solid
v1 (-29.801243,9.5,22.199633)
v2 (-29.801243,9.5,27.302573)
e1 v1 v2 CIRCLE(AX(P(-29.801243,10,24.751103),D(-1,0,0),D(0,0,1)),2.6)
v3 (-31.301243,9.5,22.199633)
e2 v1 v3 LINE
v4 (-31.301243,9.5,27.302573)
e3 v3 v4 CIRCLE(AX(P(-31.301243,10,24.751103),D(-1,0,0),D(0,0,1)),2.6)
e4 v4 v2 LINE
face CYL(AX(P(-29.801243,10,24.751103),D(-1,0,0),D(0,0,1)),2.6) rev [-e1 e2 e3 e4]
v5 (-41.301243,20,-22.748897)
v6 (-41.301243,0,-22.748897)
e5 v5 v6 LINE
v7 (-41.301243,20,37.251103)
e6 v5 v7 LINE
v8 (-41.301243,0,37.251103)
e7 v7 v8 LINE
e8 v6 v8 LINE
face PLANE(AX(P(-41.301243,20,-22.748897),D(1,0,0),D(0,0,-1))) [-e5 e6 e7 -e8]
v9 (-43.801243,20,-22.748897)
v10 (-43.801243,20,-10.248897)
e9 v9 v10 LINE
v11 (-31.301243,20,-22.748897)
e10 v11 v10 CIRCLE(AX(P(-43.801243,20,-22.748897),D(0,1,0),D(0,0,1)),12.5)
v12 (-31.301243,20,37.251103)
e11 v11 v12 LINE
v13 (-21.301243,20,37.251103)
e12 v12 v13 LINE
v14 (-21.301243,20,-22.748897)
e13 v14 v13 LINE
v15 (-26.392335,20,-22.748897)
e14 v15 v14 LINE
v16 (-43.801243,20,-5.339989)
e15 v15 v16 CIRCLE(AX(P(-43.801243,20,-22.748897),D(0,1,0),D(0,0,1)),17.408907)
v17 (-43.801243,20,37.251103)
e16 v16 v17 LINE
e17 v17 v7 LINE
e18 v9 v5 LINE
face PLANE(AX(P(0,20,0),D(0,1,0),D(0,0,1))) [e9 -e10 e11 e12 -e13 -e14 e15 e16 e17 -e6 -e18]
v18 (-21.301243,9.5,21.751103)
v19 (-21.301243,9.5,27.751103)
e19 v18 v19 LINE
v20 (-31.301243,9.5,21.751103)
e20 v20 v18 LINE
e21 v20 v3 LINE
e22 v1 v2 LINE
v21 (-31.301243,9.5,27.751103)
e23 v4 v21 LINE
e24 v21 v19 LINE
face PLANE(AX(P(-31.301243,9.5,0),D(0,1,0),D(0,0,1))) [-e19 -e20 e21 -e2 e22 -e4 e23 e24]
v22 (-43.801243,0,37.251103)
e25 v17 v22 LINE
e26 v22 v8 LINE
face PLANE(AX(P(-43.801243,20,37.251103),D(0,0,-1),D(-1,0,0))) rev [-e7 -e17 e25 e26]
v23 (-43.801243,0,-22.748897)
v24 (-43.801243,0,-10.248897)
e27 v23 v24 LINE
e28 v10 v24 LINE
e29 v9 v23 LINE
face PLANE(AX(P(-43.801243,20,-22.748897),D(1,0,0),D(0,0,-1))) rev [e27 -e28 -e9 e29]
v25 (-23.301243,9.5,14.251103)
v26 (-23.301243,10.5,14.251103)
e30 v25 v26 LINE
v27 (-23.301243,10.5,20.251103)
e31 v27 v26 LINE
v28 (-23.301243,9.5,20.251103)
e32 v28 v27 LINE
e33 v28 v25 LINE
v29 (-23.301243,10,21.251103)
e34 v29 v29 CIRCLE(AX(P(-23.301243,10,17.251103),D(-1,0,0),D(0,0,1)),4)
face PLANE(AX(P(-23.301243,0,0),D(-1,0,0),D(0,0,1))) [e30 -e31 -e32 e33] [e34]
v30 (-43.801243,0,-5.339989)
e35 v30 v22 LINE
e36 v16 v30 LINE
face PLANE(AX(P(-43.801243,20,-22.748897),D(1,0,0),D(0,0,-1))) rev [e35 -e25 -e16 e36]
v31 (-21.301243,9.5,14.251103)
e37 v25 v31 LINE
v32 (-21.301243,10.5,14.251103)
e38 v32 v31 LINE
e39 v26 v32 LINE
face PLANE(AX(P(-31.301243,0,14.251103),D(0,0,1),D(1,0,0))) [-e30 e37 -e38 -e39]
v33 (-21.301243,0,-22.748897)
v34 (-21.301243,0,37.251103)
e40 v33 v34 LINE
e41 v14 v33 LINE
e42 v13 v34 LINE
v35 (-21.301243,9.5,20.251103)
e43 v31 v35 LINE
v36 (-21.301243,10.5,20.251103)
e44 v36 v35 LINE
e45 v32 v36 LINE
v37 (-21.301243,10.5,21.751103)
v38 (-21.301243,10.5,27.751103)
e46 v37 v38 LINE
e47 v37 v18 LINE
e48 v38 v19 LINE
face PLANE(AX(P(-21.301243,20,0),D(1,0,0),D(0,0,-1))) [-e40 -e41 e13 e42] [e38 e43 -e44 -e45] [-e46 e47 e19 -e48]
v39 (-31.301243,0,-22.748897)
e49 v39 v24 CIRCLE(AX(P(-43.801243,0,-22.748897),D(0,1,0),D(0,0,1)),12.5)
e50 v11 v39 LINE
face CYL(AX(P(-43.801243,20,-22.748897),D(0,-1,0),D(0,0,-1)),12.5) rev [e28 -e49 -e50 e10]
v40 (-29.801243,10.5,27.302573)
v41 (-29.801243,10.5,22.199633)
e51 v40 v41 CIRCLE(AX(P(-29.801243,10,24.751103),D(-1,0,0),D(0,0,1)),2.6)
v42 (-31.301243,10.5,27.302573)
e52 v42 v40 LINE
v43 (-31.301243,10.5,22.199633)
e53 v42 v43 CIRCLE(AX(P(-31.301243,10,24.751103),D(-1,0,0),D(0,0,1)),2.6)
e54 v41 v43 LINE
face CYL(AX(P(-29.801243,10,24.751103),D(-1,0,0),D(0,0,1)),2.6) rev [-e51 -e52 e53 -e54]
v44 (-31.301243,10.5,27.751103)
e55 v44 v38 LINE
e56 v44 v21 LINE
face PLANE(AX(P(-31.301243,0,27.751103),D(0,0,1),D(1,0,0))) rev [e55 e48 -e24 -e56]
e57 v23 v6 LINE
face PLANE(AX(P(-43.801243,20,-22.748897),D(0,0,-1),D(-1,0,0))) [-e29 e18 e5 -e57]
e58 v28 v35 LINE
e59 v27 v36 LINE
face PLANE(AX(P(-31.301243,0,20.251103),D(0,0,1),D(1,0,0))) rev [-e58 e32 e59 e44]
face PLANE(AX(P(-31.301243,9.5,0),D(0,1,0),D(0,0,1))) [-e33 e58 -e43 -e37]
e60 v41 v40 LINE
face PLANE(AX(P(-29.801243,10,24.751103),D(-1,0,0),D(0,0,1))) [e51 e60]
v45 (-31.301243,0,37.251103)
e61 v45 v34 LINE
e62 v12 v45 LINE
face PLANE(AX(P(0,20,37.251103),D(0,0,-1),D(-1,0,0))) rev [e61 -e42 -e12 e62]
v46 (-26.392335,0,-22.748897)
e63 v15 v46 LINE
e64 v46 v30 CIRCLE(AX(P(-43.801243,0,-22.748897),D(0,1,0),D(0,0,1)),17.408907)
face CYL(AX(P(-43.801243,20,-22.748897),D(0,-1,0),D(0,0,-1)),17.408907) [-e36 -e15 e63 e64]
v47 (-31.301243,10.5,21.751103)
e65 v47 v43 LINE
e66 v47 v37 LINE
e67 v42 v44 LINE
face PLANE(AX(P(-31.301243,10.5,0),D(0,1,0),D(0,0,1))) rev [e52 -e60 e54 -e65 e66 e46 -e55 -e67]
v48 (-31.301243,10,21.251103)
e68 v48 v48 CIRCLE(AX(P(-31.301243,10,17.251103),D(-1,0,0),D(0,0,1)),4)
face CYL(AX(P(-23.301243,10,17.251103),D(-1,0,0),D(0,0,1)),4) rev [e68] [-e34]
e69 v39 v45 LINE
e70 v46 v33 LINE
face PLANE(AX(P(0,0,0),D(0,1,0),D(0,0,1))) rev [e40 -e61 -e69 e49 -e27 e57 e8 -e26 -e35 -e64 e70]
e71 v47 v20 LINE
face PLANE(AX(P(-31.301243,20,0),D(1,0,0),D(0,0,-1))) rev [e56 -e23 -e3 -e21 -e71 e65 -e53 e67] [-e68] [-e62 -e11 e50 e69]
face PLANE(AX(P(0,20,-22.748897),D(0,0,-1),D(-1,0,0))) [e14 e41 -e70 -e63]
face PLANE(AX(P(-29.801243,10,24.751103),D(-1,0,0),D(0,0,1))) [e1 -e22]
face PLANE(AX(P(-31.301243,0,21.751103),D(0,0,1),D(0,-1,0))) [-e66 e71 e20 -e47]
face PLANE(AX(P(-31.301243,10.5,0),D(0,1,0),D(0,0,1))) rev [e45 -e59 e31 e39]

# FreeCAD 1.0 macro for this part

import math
import FreeCAD as App
import Part
import Sketcher


def add_polygon(sketch, points):
    """Adds a closed chain of lines whose ends are joined by coincident constraints."""
    first, n = sketch.GeometryCount, len(points)
    for a, b in zip(points, points[1:] + points[:1]):
        sketch.addGeometry(Part.LineSegment(App.Vector(*a, 0), App.Vector(*b, 0)), False)
    for i in range(n):
        sketch.addConstraint(Sketcher.Constraint("Coincident", first + i, 2, first + (i + 1) % n, 1))

doc = App.newDocument("Part")
body = doc.addObject("PartDesign::Body", "Body")

# Sketch on XZ plane
sketch1 = body.newObject("Sketcher::SketchObject", "Sketch")
sketch1.AttachmentSupport = (doc.getObject("XZ_Plane"), [""])
sketch1.MapMode = "FlatFace"
sketch1.addGeometry([
    Part.LineSegment(App.Vector(-41.3, -22.7, 0), App.Vector(-43.8, -22.7, 0)),  # 0
    Part.LineSegment(App.Vector(-43.8, -22.7, 0), App.Vector(-43.8, -10.2, 0)),  # 1
    Part.ArcOfCircle(Part.Circle(App.Vector(-43.8, -22.7, 0), App.Vector(0, 0, 1), 12.5), math.radians(90), math.radians(360)),  # 2
    Part.LineSegment(App.Vector(-31.3, -22.7, 0), App.Vector(-31.3, 37.3, 0)),  # 3
    Part.LineSegment(App.Vector(-31.3, 37.3, 0), App.Vector(-21.3, 37.3, 0)),  # 4
    Part.LineSegment(App.Vector(-21.3, 37.3, 0), App.Vector(-21.3, -22.7, 0)),  # 5
    Part.LineSegment(App.Vector(-21.3, -22.7, 0), App.Vector(-26.4, -22.7, 0)),  # 6
    Part.ArcOfCircle(Part.Circle(App.Vector(-43.8, -22.7, 0), App.Vector(0, 0, 1), 17.4), math.radians(90), math.radians(360)),  # 7
    Part.LineSegment(App.Vector(-43.8, -5.3, 0), App.Vector(-43.8, 37.3, 0)),  # 8
    Part.LineSegment(App.Vector(-43.8, 37.3, 0), App.Vector(-41.3, 37.3, 0)),  # 9
    Part.LineSegment(App.Vector(-41.3, 37.3, 0), App.Vector(-41.3, -22.7, 0)),  # 10
], False)
sketch1.addConstraint([
    Sketcher.Constraint("Coincident", 0, 2, 1, 1),
    Sketcher.Constraint("Coincident", 1, 2, 2, 1),
    Sketcher.Constraint("Tangent", 2, 2, 3, 1),
    Sketcher.Constraint("Coincident", 3, 2, 4, 1),
    Sketcher.Constraint("Coincident", 4, 2, 5, 1),
    Sketcher.Constraint("Coincident", 5, 2, 6, 1),
    Sketcher.Constraint("Coincident", 6, 2, 7, 2),
    Sketcher.Constraint("Coincident", 7, 1, 8, 1),
    Sketcher.Constraint("Coincident", 8, 2, 9, 1),
    Sketcher.Constraint("Coincident", 9, 2, 10, 1),
    Sketcher.Constraint("Coincident", 10, 2, 0, 1),
    Sketcher.Constraint("Horizontal", 0),
    Sketcher.Constraint("Vertical", 1),
    Sketcher.Constraint("Vertical", 3),
    Sketcher.Constraint("Horizontal", 4),
    Sketcher.Constraint("Vertical", 5),
    Sketcher.Constraint("Horizontal", 6),
    Sketcher.Constraint("Vertical", 8),
    Sketcher.Constraint("Horizontal", 9),
    Sketcher.Constraint("Vertical", 10),
    Sketcher.Constraint("Coincident", 7, 3, 2, 3),
    Sketcher.Constraint("Coincident", 0, 2, 2, 3),
    Sketcher.Constraint("Horizontal", 2, 2, 5, 2),
    Sketcher.Constraint("Horizontal", 4, 2, 8, 2),
    Sketcher.Constraint("Vertical", 1, 2, 7, 1),
    Sketcher.Constraint("Radius", 2, 12.5),
    Sketcher.Constraint("DistanceX", 4, 1, 4, 2, 10.0),
    Sketcher.Constraint("DistanceY", 3, 1, 3, 2, 60.0),
    Sketcher.Constraint("DistanceX", 0, 2, 0, 1, 2.5),
    Sketcher.Constraint("Radius", 7, 17.408907),
    Sketcher.Constraint("DistanceY", 7, 1, -1, 1, 5.339989),
    Sketcher.Constraint("DistanceX", 2, 3, -1, 1, 43.801243),
])
pad1 = body.newObject("PartDesign::Pad", "Pad")
pad1.Profile = sketch1
pad1.Length = 20
pad1.Reversed = True

# Sketch on YZ plane
sketch2 = body.newObject("Sketcher::SketchObject", "Sketch001")
sketch2.AttachmentSupport = (doc.getObject("YZ_Plane"), [""])
sketch2.MapMode = "FlatFace"
sketch2.AttachmentOffset = App.Placement(App.Vector(0, 0, -31.301243), App.Rotation())
sketch2.addGeometry(Part.Circle(App.Vector(10, 17.3, 0), App.Vector(0, 0, 1), 4), False)
sketch2.addConstraint([
    Sketcher.Constraint("Diameter", 0, 8.0),
    Sketcher.Constraint("DistanceX", -1, 1, 0, 3, 10.0),
    Sketcher.Constraint("DistanceY", -1, 1, 0, 3, 17.251103),
])
pocket1 = body.newObject("PartDesign::Pocket", "Pocket")
pocket1.Profile = sketch2
pocket1.Length = 8
pocket1.Reversed = True

# Sketch on YZ plane
sketch3 = body.newObject("Sketcher::SketchObject", "Sketch002")
sketch3.AttachmentSupport = (doc.getObject("YZ_Plane"), [""])
sketch3.MapMode = "FlatFace"
sketch3.AttachmentOffset = App.Placement(App.Vector(0, 0, -21.301243), App.Rotation())
add_polygon(sketch3, [(10.5, 27.8), (9.5, 27.8), (9.5, 21.8), (10.5, 21.8)])  # lines 0-3
add_polygon(sketch3, [(10.5, 20.3), (9.5, 20.3), (9.5, 14.3), (10.5, 14.3)])  # lines 4-7
sketch3.addConstraint([
    Sketcher.Constraint("Horizontal", 0),
    Sketcher.Constraint("Vertical", 1),
    Sketcher.Constraint("Horizontal", 2),
    Sketcher.Constraint("Vertical", 3),
    Sketcher.Constraint("Horizontal", 4),
    Sketcher.Constraint("Vertical", 5),
    Sketcher.Constraint("Horizontal", 6),
    Sketcher.Constraint("Vertical", 7),
    Sketcher.Constraint("Vertical", 1, 2, 4, 2),
    Sketcher.Constraint("Vertical", 3, 2, 6, 2),
    Sketcher.Constraint("Equal", 3, 5),
    Sketcher.Constraint("DistanceX", 0, 2, 0, 1, 1.0),
    Sketcher.Constraint("DistanceY", 1, 2, 1, 1, 6.0),
    Sketcher.Constraint("DistanceX", -1, 1, 0, 2, 9.5),
    Sketcher.Constraint("DistanceY", 4, 2, 1, 2, 1.5),
    Sketcher.Constraint("DistanceY", -1, 1, 0, 2, 27.751103),
])
pocket2 = body.newObject("PartDesign::Pocket", "Pocket001")
pocket2.Profile = sketch3
pocket2.Length = 10

# Sketch on YZ plane
sketch4 = body.newObject("Sketcher::SketchObject", "Sketch003")
sketch4.AttachmentSupport = (doc.getObject("YZ_Plane"), [""])
sketch4.MapMode = "FlatFace"
sketch4.AttachmentOffset = App.Placement(App.Vector(0, 0, -31.301243), App.Rotation())
sketch4.addGeometry(Part.Circle(App.Vector(10, 24.8, 0), App.Vector(0, 0, 1), 2.6), False)
sketch4.addConstraint([
    Sketcher.Constraint("Diameter", 0, 5.2),
    Sketcher.Constraint("DistanceX", -1, 1, 0, 3, 10.0),
    Sketcher.Constraint("DistanceY", -1, 1, 0, 3, 24.751103),
])
pocket3 = body.newObject("PartDesign::Pocket", "Pocket002")
pocket3.Profile = sketch4
pocket3.Length = 1.5
pocket3.Reversed = True

doc.recompute()
